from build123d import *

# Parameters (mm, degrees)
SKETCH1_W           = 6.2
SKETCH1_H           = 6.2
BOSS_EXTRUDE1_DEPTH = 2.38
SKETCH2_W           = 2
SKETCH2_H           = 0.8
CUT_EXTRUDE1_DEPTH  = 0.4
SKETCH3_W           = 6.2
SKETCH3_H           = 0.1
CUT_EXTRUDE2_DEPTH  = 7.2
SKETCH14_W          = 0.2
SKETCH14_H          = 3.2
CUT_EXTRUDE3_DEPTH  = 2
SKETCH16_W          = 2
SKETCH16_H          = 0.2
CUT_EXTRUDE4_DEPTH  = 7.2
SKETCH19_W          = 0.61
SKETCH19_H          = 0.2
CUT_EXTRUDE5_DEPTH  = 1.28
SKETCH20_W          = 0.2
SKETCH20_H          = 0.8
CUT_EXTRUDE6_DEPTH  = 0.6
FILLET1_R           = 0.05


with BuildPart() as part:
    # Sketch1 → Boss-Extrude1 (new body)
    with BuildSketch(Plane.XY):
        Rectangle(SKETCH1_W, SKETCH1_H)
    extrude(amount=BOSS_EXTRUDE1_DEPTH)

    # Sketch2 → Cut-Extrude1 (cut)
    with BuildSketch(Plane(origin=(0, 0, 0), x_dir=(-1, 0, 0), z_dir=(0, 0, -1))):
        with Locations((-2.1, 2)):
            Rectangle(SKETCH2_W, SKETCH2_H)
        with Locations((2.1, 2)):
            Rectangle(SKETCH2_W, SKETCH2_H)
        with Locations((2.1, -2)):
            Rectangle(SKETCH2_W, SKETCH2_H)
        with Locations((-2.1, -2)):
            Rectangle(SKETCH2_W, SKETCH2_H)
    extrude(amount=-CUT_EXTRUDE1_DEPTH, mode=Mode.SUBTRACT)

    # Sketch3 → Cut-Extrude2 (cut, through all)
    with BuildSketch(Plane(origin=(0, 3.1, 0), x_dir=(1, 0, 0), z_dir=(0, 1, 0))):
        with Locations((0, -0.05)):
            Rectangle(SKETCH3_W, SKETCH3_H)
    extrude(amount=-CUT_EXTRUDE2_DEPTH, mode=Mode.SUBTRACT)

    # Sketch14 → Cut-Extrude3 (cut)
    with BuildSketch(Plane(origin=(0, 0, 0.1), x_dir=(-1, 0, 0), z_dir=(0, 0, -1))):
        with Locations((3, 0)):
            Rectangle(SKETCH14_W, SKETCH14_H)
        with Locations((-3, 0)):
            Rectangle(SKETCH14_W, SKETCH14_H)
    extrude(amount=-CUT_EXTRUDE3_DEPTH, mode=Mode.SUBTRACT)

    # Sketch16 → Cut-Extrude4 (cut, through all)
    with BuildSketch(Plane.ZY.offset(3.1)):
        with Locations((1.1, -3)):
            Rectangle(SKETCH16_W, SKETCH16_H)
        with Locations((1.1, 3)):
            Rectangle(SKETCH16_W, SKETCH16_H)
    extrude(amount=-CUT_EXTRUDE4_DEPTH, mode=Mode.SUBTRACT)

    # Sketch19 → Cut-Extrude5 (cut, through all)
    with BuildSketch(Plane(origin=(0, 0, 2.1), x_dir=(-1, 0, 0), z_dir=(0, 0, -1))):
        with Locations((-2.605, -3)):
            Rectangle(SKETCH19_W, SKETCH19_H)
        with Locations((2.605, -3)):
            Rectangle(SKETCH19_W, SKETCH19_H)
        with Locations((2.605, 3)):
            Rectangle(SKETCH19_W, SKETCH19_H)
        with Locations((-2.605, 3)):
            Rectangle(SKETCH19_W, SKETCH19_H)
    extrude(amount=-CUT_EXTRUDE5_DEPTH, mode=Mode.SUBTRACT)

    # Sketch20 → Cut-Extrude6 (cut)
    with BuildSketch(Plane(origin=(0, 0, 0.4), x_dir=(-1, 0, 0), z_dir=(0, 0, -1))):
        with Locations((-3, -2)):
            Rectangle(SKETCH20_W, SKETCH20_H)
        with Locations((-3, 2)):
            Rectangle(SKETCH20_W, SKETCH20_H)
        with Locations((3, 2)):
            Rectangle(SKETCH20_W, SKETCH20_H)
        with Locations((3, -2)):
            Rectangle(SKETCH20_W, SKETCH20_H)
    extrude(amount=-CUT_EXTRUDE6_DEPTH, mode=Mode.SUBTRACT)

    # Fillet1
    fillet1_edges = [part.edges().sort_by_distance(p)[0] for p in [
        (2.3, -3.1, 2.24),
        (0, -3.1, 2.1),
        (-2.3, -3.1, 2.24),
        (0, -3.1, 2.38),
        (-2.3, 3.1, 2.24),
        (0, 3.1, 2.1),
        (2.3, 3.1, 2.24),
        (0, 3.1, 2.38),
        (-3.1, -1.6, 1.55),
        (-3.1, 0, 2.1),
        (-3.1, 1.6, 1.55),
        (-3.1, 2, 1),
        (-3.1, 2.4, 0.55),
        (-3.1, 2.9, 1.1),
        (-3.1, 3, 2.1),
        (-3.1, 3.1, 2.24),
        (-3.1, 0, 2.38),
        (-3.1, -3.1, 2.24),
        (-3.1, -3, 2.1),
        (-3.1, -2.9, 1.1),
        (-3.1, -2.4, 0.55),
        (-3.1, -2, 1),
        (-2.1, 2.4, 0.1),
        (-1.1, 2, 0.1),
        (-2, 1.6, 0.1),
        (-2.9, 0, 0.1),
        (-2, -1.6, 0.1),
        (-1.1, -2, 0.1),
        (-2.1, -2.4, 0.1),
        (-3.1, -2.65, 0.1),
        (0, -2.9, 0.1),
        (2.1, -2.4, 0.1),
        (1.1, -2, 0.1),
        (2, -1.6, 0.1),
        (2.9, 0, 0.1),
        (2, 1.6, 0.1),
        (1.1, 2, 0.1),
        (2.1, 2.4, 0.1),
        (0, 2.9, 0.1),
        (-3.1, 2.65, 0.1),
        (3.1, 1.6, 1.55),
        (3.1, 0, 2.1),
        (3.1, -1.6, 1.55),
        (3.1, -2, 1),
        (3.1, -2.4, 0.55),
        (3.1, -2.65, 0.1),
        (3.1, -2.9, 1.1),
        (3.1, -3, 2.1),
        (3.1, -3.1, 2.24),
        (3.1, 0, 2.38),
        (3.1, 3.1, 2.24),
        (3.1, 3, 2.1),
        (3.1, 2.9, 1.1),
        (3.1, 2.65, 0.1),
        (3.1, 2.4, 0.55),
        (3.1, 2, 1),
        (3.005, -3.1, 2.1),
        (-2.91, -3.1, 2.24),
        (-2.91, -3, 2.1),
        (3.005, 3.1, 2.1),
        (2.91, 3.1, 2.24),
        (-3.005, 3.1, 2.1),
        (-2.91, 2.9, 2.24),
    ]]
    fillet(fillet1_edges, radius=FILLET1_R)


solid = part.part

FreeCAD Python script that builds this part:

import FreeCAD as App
import Part
import Sketcher

V = App.Vector
Q = App.Units.Quantity


def edges_at(feature, points):
    """Names of the edges that pass closest to the given points."""
    edges = feature.Shape.Edges
    near = lambda p: min(range(len(edges)), key=lambda i: edges[i].distToShape(Part.Vertex(*p))[0])
    return sorted({f"Edge{near(p) + 1}" for p in points})


def add_polygon(sketch, points):
    """Adds a closed chain of lines whose ends are joined by coincident constraints."""
    first, n = sketch.GeometryCount, len(points)
    for a, b in zip(points, points[1:] + points[:1]):
        sketch.addGeometry(Part.LineSegment(App.Vector(*a, 0), App.Vector(*b, 0)), False)
    for i in range(n):
        sketch.addConstraint(Sketcher.Constraint("Coincident", first + i, 2, first + (i + 1) % n, 1))

doc = App.newDocument("Part")
body = doc.addObject("PartDesign::Body", "Body")

# Sketch on XY plane
sketch1 = doc.addObject("Sketcher::SketchObject", "Sketch")
body.addObject(sketch1)
sketch1.AttachmentSupport = (doc.XY_Plane, [""])
sketch1.MapMode = "FlatFace"
add_polygon(sketch1, [(-3, 3), (-3, -3), (3, -3), (3, 3)])  # lines 0-3
sketch1.addConstraint([
    Sketcher.Constraint("Vertical", 0),
    Sketcher.Constraint("Horizontal", 1),
    Sketcher.Constraint("Vertical", 2),
    Sketcher.Constraint("Horizontal", 3),
    Sketcher.Constraint("Symmetric", 0, 2, 2, 2, -1, 1),
    Sketcher.Constraint("Equal", 3, 0),
    Sketcher.Constraint("DistanceX", 1, 1, 1, 2, Q("6.2 mm")),
])
pad1 = doc.addObject("PartDesign::Pad", "Pad")
body.addObject(pad1)
pad1.Profile = sketch1
pad1.Length = 2.38

# Sketch on XY plane
sketch2 = doc.addObject("Sketcher::SketchObject", "Sketch001")
body.addObject(sketch2)
sketch2.AttachmentSupport = (doc.XY_Plane, [""])
sketch2.MapMode = "FlatFace"
add_polygon(sketch2, [(3.1, 2.4), (3.1, 1.6), (1.1, 1.6), (1.1, 2.4)])  # lines 0-3
add_polygon(sketch2, [(-1.1, 2.4), (-1.1, 1.6), (-3.1, 1.6), (-3.1, 2.4)])  # lines 4-7
add_polygon(sketch2, [(-1.1, -1.6), (-1.1, -2.4), (-3.1, -2.4), (-3.1, -1.6)])  # lines 8-11
add_polygon(sketch2, [(3.1, -1.6), (3.1, -2.4), (1.1, -2.4), (1.1, -1.6)])  # lines 12-15
sketch2.addConstraint([
    Sketcher.Constraint("Vertical", 0),
    Sketcher.Constraint("Horizontal", 1),
    Sketcher.Constraint("Vertical", 2),
    Sketcher.Constraint("Horizontal", 3),
    Sketcher.Constraint("Vertical", 4),
    Sketcher.Constraint("Horizontal", 5),
    Sketcher.Constraint("Vertical", 6),
    Sketcher.Constraint("Horizontal", 7),
    Sketcher.Constraint("Vertical", 8),
    Sketcher.Constraint("Horizontal", 9),
    Sketcher.Constraint("Vertical", 10),
    Sketcher.Constraint("Horizontal", 11),
    Sketcher.Constraint("Vertical", 12),
    Sketcher.Constraint("Horizontal", 13),
    Sketcher.Constraint("Vertical", 14),
    Sketcher.Constraint("Horizontal", 15),
    Sketcher.Constraint("Symmetric", 2, 2, 8, 2, -1, 1),
    Sketcher.Constraint("Symmetric", 0, 2, 10, 2, -1, 1),
    Sketcher.Constraint("Symmetric", 6, 2, 12, 2, -1, 1),
    Sketcher.Constraint("Symmetric", 4, 2, 14, 2, -1, 1),
    Sketcher.Constraint("Symmetric", 1, 2, 4, 2, -2),
    Sketcher.Constraint("Symmetric", 3, 2, 6, 2, -2),
    Sketcher.Constraint("DistanceX", 1, 2, 1, 1, Q("2 mm")),
    Sketcher.Constraint("DistanceY", 0, 2, 0, 1, Q("0.8 mm")),
    Sketcher.Constraint("DistanceY", 8, 2, 4, 2, Q("4 mm")),
    Sketcher.Constraint("DistanceX", -1, 1, 0, 2, Q("3.1 mm")),
])
pocket1 = doc.addObject("PartDesign::Pocket", "Pocket")
body.addObject(pocket1)
pocket1.Profile = sketch2
pocket1.Length = 0.4
pocket1.Reversed = True

# Sketch on XZ plane
sketch3 = doc.addObject("Sketcher::SketchObject", "Sketch002")
body.addObject(sketch3)
sketch3.AttachmentSupport = (doc.XZ_Plane, [""])
sketch3.MapMode = "FlatFace"
sketch3.AttachmentOffset = App.Placement(V(0, 0, -3.1), App.Rotation())
add_polygon(sketch3, [(-3.1, 0), (-3.1, 0.1), (3.1, 0.1), (3.1, 0)])  # lines 0-3
sketch3.addConstraint([
    Sketcher.Constraint("Vertical", 0),
    Sketcher.Constraint("Horizontal", 1),
    Sketcher.Constraint("Vertical", 2),
    Sketcher.Constraint("Horizontal", 3),
    Sketcher.Constraint("Symmetric", 2, 2, 3, 2, -1, 1),
    Sketcher.Constraint("DistanceX", 1, 1, 1, 2, Q("6.2 mm")),
    Sketcher.Constraint("DistanceY", 0, 1, 0, 2, Q("0.1 mm")),
])
pocket2 = doc.addObject("PartDesign::Pocket", "Pocket001")
body.addObject(pocket2)
pocket2.Profile = sketch3
pocket2.Type = "ThroughAll"
pocket2.Reversed = True

# Sketch on XY plane
sketch4 = doc.addObject("Sketcher::SketchObject", "Sketch003")
body.addObject(sketch4)
sketch4.AttachmentSupport = (doc.XY_Plane, [""])
sketch4.MapMode = "FlatFace"
sketch4.AttachmentOffset = App.Placement(V(0, 0, 0.1), App.Rotation())
add_polygon(sketch4, [(-2.9, 1.6), (-2.9, -1.6), (-3.1, -1.6), (-3.1, 1.6)])  # lines 0-3
add_polygon(sketch4, [(3.1, 1.6), (3.1, -1.6), (2.9, -1.6), (2.9, 1.6)])  # lines 4-7
sketch4.addConstraint([
    Sketcher.Constraint("Vertical", 0),
    Sketcher.Constraint("Horizontal", 1),
    Sketcher.Constraint("Vertical", 2),
    Sketcher.Constraint("Horizontal", 3),
    Sketcher.Constraint("Vertical", 4),
    Sketcher.Constraint("Horizontal", 5),
    Sketcher.Constraint("Vertical", 6),
    Sketcher.Constraint("Horizontal", 7),
    Sketcher.Constraint("Symmetric", 2, 2, 4, 2, -1, 1),
    Sketcher.Constraint("Symmetric", 0, 2, 6, 2, -1, 1),
    Sketcher.Constraint("Horizontal", 1, 2, 4, 2),
    Sketcher.Constraint("DistanceX", 1, 2, 1, 1, Q("0.2 mm")),
    Sketcher.Constraint("DistanceY", 0, 2, 0, 1, Q("3.2 mm")),
    Sketcher.Constraint("DistanceX", 0, 2, 4, 2, Q("6 mm")),
])
pocket3 = doc.addObject("PartDesign::Pocket", "Pocket002")
body.addObject(pocket3)
pocket3.Profile = sketch4
pocket3.Length = 2
pocket3.Reversed = True

# Sketch on YZ plane
sketch5 = doc.addObject("Sketcher::SketchObject", "Sketch004")
body.addObject(sketch5)
sketch5.AttachmentSupport = (doc.YZ_Plane, [""])
sketch5.MapMode = "FlatFace"
sketch5.AttachmentOffset = App.Placement(V(0, 0, -3.1), App.Rotation())
add_polygon(sketch5, [(-2.9, 0.1), (-3.1, 0.1), (-3.1, 2.1), (-2.9, 2.1)])  # lines 0-3
add_polygon(sketch5, [(3.1, 0.1), (2.9, 0.1), (2.9, 2.1), (3.1, 2.1)])  # lines 4-7
sketch5.addConstraint([
    Sketcher.Constraint("Horizontal", 0),
    Sketcher.Constraint("Vertical", 1),
    Sketcher.Constraint("Horizontal", 2),
    Sketcher.Constraint("Vertical", 3),
    Sketcher.Constraint("Horizontal", 4),
    Sketcher.Constraint("Vertical", 5),
    Sketcher.Constraint("Horizontal", 6),
    Sketcher.Constraint("Vertical", 7),
    Sketcher.Constraint("Symmetric", 3, 2, 4, 2, -2),
    Sketcher.Constraint("Symmetric", 1, 2, 6, 2, -2),
    Sketcher.Constraint("DistanceY", 1, 1, 1, 2, Q("2 mm")),
    Sketcher.Constraint("DistanceX", 0, 2, 0, 1, Q("0.2 mm")),
    Sketcher.Constraint("DistanceX", 0, 2, 4, 2, Q("6 mm")),
    Sketcher.Constraint("DistanceY", -1, 1, 0, 2, Q("0.1 mm")),
])
pocket4 = doc.addObject("PartDesign::Pocket", "Pocket003")
body.addObject(pocket4)
pocket4.Profile = sketch5
pocket4.Type = "ThroughAll"
pocket4.Reversed = True

# Sketch on XY plane
sketch6 = doc.addObject("Sketcher::SketchObject", "Sketch005")
body.addObject(sketch6)
sketch6.AttachmentSupport = (doc.XY_Plane, [""])
sketch6.MapMode = "FlatFace"
sketch6.AttachmentOffset = App.Placement(V(0, 0, 2.1), App.Rotation())
add_polygon(sketch6, [(2.91, -2.9), (2.91, -3.1), (2.3, -3.1), (2.3, -2.9)])  # lines 0-3
add_polygon(sketch6, [(-2.3, -2.9), (-2.3, -3.1), (-2.91, -3.1), (-2.91, -2.9)])  # lines 4-7
add_polygon(sketch6, [(-2.3, 3.1), (-2.3, 2.9), (-2.91, 2.9), (-2.91, 3.1)])  # lines 8-11
add_polygon(sketch6, [(2.91, 3.1), (2.91, 2.9), (2.3, 2.9), (2.3, 3.1)])  # lines 12-15
sketch6.addConstraint([
    Sketcher.Constraint("Vertical", 0),
    Sketcher.Constraint("Horizontal", 1),
    Sketcher.Constraint("Vertical", 2),
    Sketcher.Constraint("Horizontal", 3),
    Sketcher.Constraint("Vertical", 4),
    Sketcher.Constraint("Horizontal", 5),
    Sketcher.Constraint("Vertical", 6),
    Sketcher.Constraint("Horizontal", 7),
    Sketcher.Constraint("Vertical", 8),
    Sketcher.Constraint("Horizontal", 9),
    Sketcher.Constraint("Vertical", 10),
    Sketcher.Constraint("Horizontal", 11),
    Sketcher.Constraint("Vertical", 12),
    Sketcher.Constraint("Horizontal", 13),
    Sketcher.Constraint("Vertical", 14),
    Sketcher.Constraint("Horizontal", 15),
    Sketcher.Constraint("Symmetric", 2, 2, 8, 2, -1, 1),
    Sketcher.Constraint("Symmetric", 0, 2, 10, 2, -1, 1),
    Sketcher.Constraint("Symmetric", 6, 2, 12, 2, -1, 1),
    Sketcher.Constraint("Symmetric", 4, 2, 14, 2, -1, 1),
    Sketcher.Constraint("Symmetric", 1, 2, 4, 2, -2),
    Sketcher.Constraint("Symmetric", 3, 2, 6, 2, -2),
    Sketcher.Constraint("DistanceY", 0, 2, 0, 1, Q("0.2 mm")),
    Sketcher.Constraint("DistanceY", 4, 2, 8, 2, Q("6 mm")),
    Sketcher.Constraint("DistanceX", 1, 2, 1, 1, Q("0.61 mm")),
    Sketcher.Constraint("DistanceX", -1, 1, 1, 2, Q("2.3 mm")),
])
pocket5 = doc.addObject("PartDesign::Pocket", "Pocket004")
body.addObject(pocket5)
pocket5.Profile = sketch6
pocket5.Type = "ThroughAll"
pocket5.Reversed = True

# Sketch on XY plane
sketch7 = doc.addObject("Sketcher::SketchObject", "Sketch006")
body.addObject(sketch7)
sketch7.AttachmentSupport = (doc.XY_Plane, [""])
sketch7.MapMode = "FlatFace"
sketch7.AttachmentOffset = App.Placement(V(0, 0, 0.4), App.Rotation())
add_polygon(sketch7, [(3.1, -1.6), (3.1, -2.4), (2.9, -2.4), (2.9, -1.6)])  # lines 0-3
add_polygon(sketch7, [(3.1, 2.4), (3.1, 1.6), (2.9, 1.6), (2.9, 2.4)])  # lines 4-7
add_polygon(sketch7, [(-2.9, 2.4), (-2.9, 1.6), (-3.1, 1.6), (-3.1, 2.4)])  # lines 8-11
add_polygon(sketch7, [(-2.9, -1.6), (-2.9, -2.4), (-3.1, -2.4), (-3.1, -1.6)])  # lines 12-15
sketch7.addConstraint([
    Sketcher.Constraint("Vertical", 0),
    Sketcher.Constraint("Horizontal", 1),
    Sketcher.Constraint("Vertical", 2),
    Sketcher.Constraint("Horizontal", 3),
    Sketcher.Constraint("Vertical", 4),
    Sketcher.Constraint("Horizontal", 5),
    Sketcher.Constraint("Vertical", 6),
    Sketcher.Constraint("Horizontal", 7),
    Sketcher.Constraint("Vertical", 8),
    Sketcher.Constraint("Horizontal", 9),
    Sketcher.Constraint("Vertical", 10),
    Sketcher.Constraint("Horizontal", 11),
    Sketcher.Constraint("Vertical", 12),
    Sketcher.Constraint("Horizontal", 13),
    Sketcher.Constraint("Vertical", 14),
    Sketcher.Constraint("Horizontal", 15),
    Sketcher.Constraint("Symmetric", 2, 2, 8, 2, -1, 1),
    Sketcher.Constraint("Symmetric", 0, 2, 10, 2, -1, 1),
    Sketcher.Constraint("Symmetric", 6, 2, 12, 2, -1, 1),
    Sketcher.Constraint("Symmetric", 4, 2, 14, 2, -1, 1),
    Sketcher.Constraint("Symmetric", 5, 2, 8, 2, -2),
    Sketcher.Constraint("Symmetric", 7, 2, 10, 2, -2),
    Sketcher.Constraint("DistanceX", 1, 2, 1, 1, Q("0.2 mm")),
    Sketcher.Constraint("DistanceY", 0, 2, 0, 1, Q("0.8 mm")),
    Sketcher.Constraint("DistanceY", 0, 2, 4, 2, Q("4 mm")),
    Sketcher.Constraint("DistanceX", 8, 2, 4, 2, Q("6 mm")),
])
pocket6 = doc.addObject("PartDesign::Pocket", "Pocket005")
body.addObject(pocket6)
pocket6.Profile = sketch7
pocket6.Length = 0.6
pocket6.Reversed = True
doc.recompute()

fillet = doc.addObject("PartDesign::Fillet", "Fillet")
body.addObject(fillet)
fillet.Base = (pocket6, edges_at(pocket6, [
    (2.3, -3.1, 2.24),
    (0, -3.1, 2.1),
    (-2.3, -3.1, 2.24),
    (0, -3.1, 2.38),
    (-2.3, 3.1, 2.24),
    (0, 3.1, 2.1),
    (2.3, 3.1, 2.24),
    (0, 3.1, 2.38),
    (-3.1, -1.6, 1.55),
    (-3.1, 0, 2.1),
    (-3.1, 1.6, 1.55),
    (-3.1, 2, 1),
    (-3.1, 2.4, 0.55),
    (-3.1, 2.9, 1.1),
    (-3.1, 3, 2.1),
    (-3.1, 3.1, 2.24),
    (-3.1, 0, 2.38),
    (-3.1, -3.1, 2.24),
    (-3.1, -3, 2.1),
    (-3.1, -2.9, 1.1),
    (-3.1, -2.4, 0.55),
    (-3.1, -2, 1),
    (-2.1, 2.4, 0.1),
    (-1.1, 2, 0.1),
    (-2, 1.6, 0.1),
    (-2.9, 0, 0.1),
    (-2, -1.6, 0.1),
    (-1.1, -2, 0.1),
    (-2.1, -2.4, 0.1),
    (-3.1, -2.65, 0.1),
    (0, -2.9, 0.1),
    (2.1, -2.4, 0.1),
    (1.1, -2, 0.1),
    (2, -1.6, 0.1),
    (2.9, 0, 0.1),
    (2, 1.6, 0.1),
    (1.1, 2, 0.1),
    (2.1, 2.4, 0.1),
    (0, 2.9, 0.1),
    (-3.1, 2.65, 0.1),
    (3.1, 1.6, 1.55),
    (3.1, 0, 2.1),
    (3.1, -1.6, 1.55),
    (3.1, -2, 1),
    (3.1, -2.4, 0.55),
    (3.1, -2.65, 0.1),
    (3.1, -2.9, 1.1),
    (3.1, -3, 2.1),
    (3.1, -3.1, 2.24),
    (3.1, 0, 2.38),
    (3.1, 3.1, 2.24),
    (3.1, 3, 2.1),
    (3.1, 2.9, 1.1),
    (3.1, 2.65, 0.1),
    (3.1, 2.4, 0.55),
    (3.1, 2, 1),
    (3.005, -3.1, 2.1),
    (-2.91, -3.1, 2.24),
    (-2.91, -3, 2.1),
    (3.005, 3.1, 2.1),
    (2.91, 3.1, 2.24),
    (-3.005, 3.1, 2.1),
    (-2.91, 2.9, 2.24),
]))
fillet.Radius = 0.05

doc.recompute()
